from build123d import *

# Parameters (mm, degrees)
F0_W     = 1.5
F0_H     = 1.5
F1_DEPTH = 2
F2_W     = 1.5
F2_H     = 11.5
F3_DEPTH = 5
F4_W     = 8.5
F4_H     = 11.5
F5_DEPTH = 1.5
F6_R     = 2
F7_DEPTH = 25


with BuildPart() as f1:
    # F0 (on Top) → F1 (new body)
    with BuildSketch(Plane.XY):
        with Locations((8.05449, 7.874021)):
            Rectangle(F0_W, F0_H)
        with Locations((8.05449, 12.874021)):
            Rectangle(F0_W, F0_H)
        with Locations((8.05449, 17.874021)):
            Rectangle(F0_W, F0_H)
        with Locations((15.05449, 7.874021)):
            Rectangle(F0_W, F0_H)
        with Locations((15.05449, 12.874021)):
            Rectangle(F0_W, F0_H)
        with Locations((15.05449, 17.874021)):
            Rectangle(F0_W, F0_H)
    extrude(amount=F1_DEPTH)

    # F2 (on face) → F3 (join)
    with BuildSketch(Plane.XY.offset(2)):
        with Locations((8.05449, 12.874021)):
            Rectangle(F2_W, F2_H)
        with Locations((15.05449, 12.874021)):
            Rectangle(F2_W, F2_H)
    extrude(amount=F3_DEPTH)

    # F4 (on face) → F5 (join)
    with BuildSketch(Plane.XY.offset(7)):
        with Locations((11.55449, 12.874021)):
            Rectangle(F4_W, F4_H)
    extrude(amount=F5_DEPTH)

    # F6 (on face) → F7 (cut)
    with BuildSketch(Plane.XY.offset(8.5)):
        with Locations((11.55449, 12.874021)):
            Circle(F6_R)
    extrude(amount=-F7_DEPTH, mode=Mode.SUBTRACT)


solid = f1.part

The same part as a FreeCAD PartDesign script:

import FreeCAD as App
import Part
import Sketcher

V = App.Vector
Q = App.Units.Quantity

doc = App.newDocument("Part")
body = doc.addObject("PartDesign::Body", "Body")
body.AllowCompound = True

# Sketch on XY plane
sketch1 = doc.addObject("Sketcher::SketchObject", "Sketch")
body.addObject(sketch1)
sketch1.AttachmentSupport = (doc.XY_Plane, [""])
sketch1.MapMode = "FlatFace"
sketch1.addGeometry(Part.LineSegment(V(7.3, 8.6, 0), V(7.3, 7.1, 0)), False)
sketch1.addGeometry(Part.LineSegment(V(7.3, 7.1, 0), V(8.8, 7.1, 0)), False)
sketch1.addGeometry(Part.LineSegment(V(8.8, 7.1, 0), V(8.8, 8.6, 0)), False)
sketch1.addGeometry(Part.LineSegment(V(8.8, 8.6, 0), V(7.3, 8.6, 0)), False)
sketch1.addGeometry(Part.LineSegment(V(7.3, 13.6, 0), V(7.3, 12.1, 0)), False)
sketch1.addGeometry(Part.LineSegment(V(7.3, 12.1, 0), V(8.8, 12.1, 0)), False)
sketch1.addGeometry(Part.LineSegment(V(8.8, 12.1, 0), V(8.8, 13.6, 0)), False)
sketch1.addGeometry(Part.LineSegment(V(8.8, 13.6, 0), V(7.3, 13.6, 0)), False)
sketch1.addGeometry(Part.LineSegment(V(7.3, 18.6, 0), V(7.3, 17.1, 0)), False)
sketch1.addGeometry(Part.LineSegment(V(7.3, 17.1, 0), V(8.8, 17.1, 0)), False)
sketch1.addGeometry(Part.LineSegment(V(8.8, 17.1, 0), V(8.8, 18.6, 0)), False)
sketch1.addGeometry(Part.LineSegment(V(8.8, 18.6, 0), V(7.3, 18.6, 0)), False)
sketch1.addGeometry(Part.LineSegment(V(14.3, 8.6, 0), V(14.3, 7.1, 0)), False)
sketch1.addGeometry(Part.LineSegment(V(14.3, 7.1, 0), V(15.8, 7.1, 0)), False)
sketch1.addGeometry(Part.LineSegment(V(15.8, 7.1, 0), V(15.8, 8.6, 0)), False)
sketch1.addGeometry(Part.LineSegment(V(15.8, 8.6, 0), V(14.3, 8.6, 0)), False)
sketch1.addGeometry(Part.LineSegment(V(14.3, 13.6, 0), V(14.3, 12.1, 0)), False)
sketch1.addGeometry(Part.LineSegment(V(14.3, 12.1, 0), V(15.8, 12.1, 0)), False)
sketch1.addGeometry(Part.LineSegment(V(15.8, 12.1, 0), V(15.8, 13.6, 0)), False)
sketch1.addGeometry(Part.LineSegment(V(15.8, 13.6, 0), V(14.3, 13.6, 0)), False)
sketch1.addGeometry(Part.LineSegment(V(14.3, 18.6, 0), V(14.3, 17.1, 0)), False)
sketch1.addGeometry(Part.LineSegment(V(14.3, 17.1, 0), V(15.8, 17.1, 0)), False)
sketch1.addGeometry(Part.LineSegment(V(15.8, 17.1, 0), V(15.8, 18.6, 0)), False)
sketch1.addGeometry(Part.LineSegment(V(15.8, 18.6, 0), V(14.3, 18.6, 0)), False)
sketch1.addConstraint(Sketcher.Constraint("Coincident", 0, 2, 1, 1))
sketch1.addConstraint(Sketcher.Constraint("Coincident", 1, 2, 2, 1))
sketch1.addConstraint(Sketcher.Constraint("Coincident", 2, 2, 3, 1))
sketch1.addConstraint(Sketcher.Constraint("Coincident", 3, 2, 0, 1))
sketch1.addConstraint(Sketcher.Constraint("Coincident", 4, 2, 5, 1))
sketch1.addConstraint(Sketcher.Constraint("Coincident", 5, 2, 6, 1))
sketch1.addConstraint(Sketcher.Constraint("Coincident", 6, 2, 7, 1))
sketch1.addConstraint(Sketcher.Constraint("Coincident", 7, 2, 4, 1))
sketch1.addConstraint(Sketcher.Constraint("Coincident", 8, 2, 9, 1))
sketch1.addConstraint(Sketcher.Constraint("Coincident", 9, 2, 10, 1))
sketch1.addConstraint(Sketcher.Constraint("Coincident", 10, 2, 11, 1))
sketch1.addConstraint(Sketcher.Constraint("Coincident", 11, 2, 8, 1))
sketch1.addConstraint(Sketcher.Constraint("Coincident", 12, 2, 13, 1))
sketch1.addConstraint(Sketcher.Constraint("Coincident", 13, 2, 14, 1))
sketch1.addConstraint(Sketcher.Constraint("Coincident", 14, 2, 15, 1))
sketch1.addConstraint(Sketcher.Constraint("Coincident", 15, 2, 12, 1))
sketch1.addConstraint(Sketcher.Constraint("Coincident", 16, 2, 17, 1))
sketch1.addConstraint(Sketcher.Constraint("Coincident", 17, 2, 18, 1))
sketch1.addConstraint(Sketcher.Constraint("Coincident", 18, 2, 19, 1))
sketch1.addConstraint(Sketcher.Constraint("Coincident", 19, 2, 16, 1))
sketch1.addConstraint(Sketcher.Constraint("Coincident", 20, 2, 21, 1))
sketch1.addConstraint(Sketcher.Constraint("Coincident", 21, 2, 22, 1))
sketch1.addConstraint(Sketcher.Constraint("Coincident", 22, 2, 23, 1))
sketch1.addConstraint(Sketcher.Constraint("Coincident", 23, 2, 20, 1))
sketch1.addConstraint(Sketcher.Constraint("Vertical", 0))
sketch1.addConstraint(Sketcher.Constraint("Horizontal", 1))
sketch1.addConstraint(Sketcher.Constraint("Vertical", 2))
sketch1.addConstraint(Sketcher.Constraint("Horizontal", 3))
sketch1.addConstraint(Sketcher.Constraint("Vertical", 4))
sketch1.addConstraint(Sketcher.Constraint("Horizontal", 5))
sketch1.addConstraint(Sketcher.Constraint("Vertical", 6))
sketch1.addConstraint(Sketcher.Constraint("Horizontal", 7))
sketch1.addConstraint(Sketcher.Constraint("Vertical", 8))
sketch1.addConstraint(Sketcher.Constraint("Horizontal", 9))
sketch1.addConstraint(Sketcher.Constraint("Vertical", 10))
sketch1.addConstraint(Sketcher.Constraint("Horizontal", 11))
sketch1.addConstraint(Sketcher.Constraint("Vertical", 12))
sketch1.addConstraint(Sketcher.Constraint("Horizontal", 13))
sketch1.addConstraint(Sketcher.Constraint("Vertical", 14))
sketch1.addConstraint(Sketcher.Constraint("Horizontal", 15))
sketch1.addConstraint(Sketcher.Constraint("Vertical", 16))
sketch1.addConstraint(Sketcher.Constraint("Horizontal", 17))
sketch1.addConstraint(Sketcher.Constraint("Vertical", 18))
sketch1.addConstraint(Sketcher.Constraint("Horizontal", 19))
sketch1.addConstraint(Sketcher.Constraint("Vertical", 20))
sketch1.addConstraint(Sketcher.Constraint("Horizontal", 21))
sketch1.addConstraint(Sketcher.Constraint("Vertical", 22))
sketch1.addConstraint(Sketcher.Constraint("Horizontal", 23))
sketch1.addConstraint(Sketcher.Constraint("Horizontal", 1, 2, 12, 2))
sketch1.addConstraint(Sketcher.Constraint("Horizontal", 3, 2, 14, 2))
sketch1.addConstraint(Sketcher.Constraint("Horizontal", 5, 2, 16, 2))
sketch1.addConstraint(Sketcher.Constraint("Horizontal", 7, 2, 18, 2))
sketch1.addConstraint(Sketcher.Constraint("Horizontal", 9, 2, 20, 2))
sketch1.addConstraint(Sketcher.Constraint("Horizontal", 11, 2, 22, 2))
sketch1.addConstraint(Sketcher.Constraint("Vertical", 3, 2, 4, 2))
sketch1.addConstraint(Sketcher.Constraint("Vertical", 2, 2, 5, 2))
sketch1.addConstraint(Sketcher.Constraint("Vertical", 7, 2, 8, 2))
sketch1.addConstraint(Sketcher.Constraint("Vertical", 6, 2, 9, 2))
sketch1.addConstraint(Sketcher.Constraint("Vertical", 15, 2, 16, 2))
sketch1.addConstraint(Sketcher.Constraint("Vertical", 14, 2, 17, 2))
sketch1.addConstraint(Sketcher.Constraint("Vertical", 19, 2, 20, 2))
sketch1.addConstraint(Sketcher.Constraint("Vertical", 18, 2, 21, 2))
sketch1.addConstraint(Sketcher.Constraint("Equal", 11, 13))
sketch1.addConstraint(Sketcher.Constraint("Equal", 23, 0))
sketch1.addConstraint(Sketcher.Constraint("Equal", 2, 4))
sketch1.addConstraint(Sketcher.Constraint("Equal", 6, 8))
sketch1.addConstraint(Sketcher.Constraint("DistanceX", 1, 1, 1, 2, Q("1.5 mm")))
sketch1.addConstraint(Sketcher.Constraint("DistanceY", 0, 2, 4, 2, Q("5 mm")))
sketch1.addConstraint(Sketcher.Constraint("DistanceY", 4, 2, 8, 2, Q("5 mm")))
sketch1.addConstraint(Sketcher.Constraint("DistanceX", 0, 2, 12, 2, Q("7 mm")))
sketch1.addConstraint(Sketcher.Constraint("DistanceX", -1, 1, 0, 2, Q("7.30449 mm")))
sketch1.addConstraint(Sketcher.Constraint("DistanceY", -1, 1, 0, 2, Q("7.124021 mm")))
pad1 = doc.addObject("PartDesign::Pad", "Pad")
body.addObject(pad1)
pad1.Profile = sketch1
pad1.Length = 2

# Sketch on XY plane
sketch2 = doc.addObject("Sketcher::SketchObject", "Sketch001")
body.addObject(sketch2)
sketch2.AttachmentSupport = (doc.XY_Plane, [""])
sketch2.MapMode = "FlatFace"
sketch2.AttachmentOffset = App.Placement(V(0, 0, 2), App.Rotation())
sketch2.addGeometry(Part.LineSegment(V(7.3, 18.6, 0), V(7.3, 7.1, 0)), False)
sketch2.addGeometry(Part.LineSegment(V(7.3, 7.1, 0), V(8.8, 7.1, 0)), False)
sketch2.addGeometry(Part.LineSegment(V(8.8, 7.1, 0), V(8.8, 18.6, 0)), False)
sketch2.addGeometry(Part.LineSegment(V(8.8, 18.6, 0), V(7.3, 18.6, 0)), False)
sketch2.addGeometry(Part.LineSegment(V(14.3, 18.6, 0), V(14.3, 7.1, 0)), False)
sketch2.addGeometry(Part.LineSegment(V(14.3, 7.1, 0), V(15.8, 7.1, 0)), False)
sketch2.addGeometry(Part.LineSegment(V(15.8, 7.1, 0), V(15.8, 18.6, 0)), False)
sketch2.addGeometry(Part.LineSegment(V(15.8, 18.6, 0), V(14.3, 18.6, 0)), False)
sketch2.addConstraint(Sketcher.Constraint("Coincident", 0, 2, 1, 1))
sketch2.addConstraint(Sketcher.Constraint("Coincident", 1, 2, 2, 1))
sketch2.addConstraint(Sketcher.Constraint("Coincident", 2, 2, 3, 1))
sketch2.addConstraint(Sketcher.Constraint("Coincident", 3, 2, 0, 1))
sketch2.addConstraint(Sketcher.Constraint("Coincident", 4, 2, 5, 1))
sketch2.addConstraint(Sketcher.Constraint("Coincident", 5, 2, 6, 1))
sketch2.addConstraint(Sketcher.Constraint("Coincident", 6, 2, 7, 1))
sketch2.addConstraint(Sketcher.Constraint("Coincident", 7, 2, 4, 1))
sketch2.addConstraint(Sketcher.Constraint("Vertical", 0))
sketch2.addConstraint(Sketcher.Constraint("Horizontal", 1))
sketch2.addConstraint(Sketcher.Constraint("Vertical", 2))
sketch2.addConstraint(Sketcher.Constraint("Horizontal", 3))
sketch2.addConstraint(Sketcher.Constraint("Vertical", 4))
sketch2.addConstraint(Sketcher.Constraint("Horizontal", 5))
sketch2.addConstraint(Sketcher.Constraint("Vertical", 6))
sketch2.addConstraint(Sketcher.Constraint("Horizontal", 7))
sketch2.addConstraint(Sketcher.Constraint("Horizontal", 1, 2, 4, 2))
sketch2.addConstraint(Sketcher.Constraint("Horizontal", 3, 2, 6, 2))
sketch2.addConstraint(Sketcher.Constraint("Equal", 3, 5))
sketch2.addConstraint(Sketcher.Constraint("DistanceX", 1, 1, 1, 2, Q("1.5 mm")))
sketch2.addConstraint(Sketcher.Constraint("DistanceY", 0, 2, 0, 1, Q("11.5 mm")))
sketch2.addConstraint(Sketcher.Constraint("DistanceX", 0, 2, 4, 2, Q("7 mm")))
sketch2.addConstraint(Sketcher.Constraint("DistanceX", -1, 1, 0, 2, Q("7.30449 mm")))
sketch2.addConstraint(Sketcher.Constraint("DistanceY", -1, 1, 0, 2, Q("7.124021 mm")))
pad2 = doc.addObject("PartDesign::Pad", "Pad001")
body.addObject(pad2)
pad2.Profile = sketch2
pad2.Length = 5

# Sketch on XY plane
sketch3 = doc.addObject("Sketcher::SketchObject", "Sketch002")
body.addObject(sketch3)
sketch3.AttachmentSupport = (doc.XY_Plane, [""])
sketch3.MapMode = "FlatFace"
sketch3.AttachmentOffset = App.Placement(V(0, 0, 7), App.Rotation())
sketch3.addGeometry(Part.LineSegment(V(7, 19, 0), V(7, 7, 0)), False)
sketch3.addGeometry(Part.LineSegment(V(7, 7, 0), V(16, 7, 0)), False)
sketch3.addGeometry(Part.LineSegment(V(16, 7, 0), V(16, 19, 0)), False)
sketch3.addGeometry(Part.LineSegment(V(16, 19, 0), V(7, 19, 0)), False)
sketch3.addConstraint(Sketcher.Constraint("Coincident", 0, 2, 1, 1))
sketch3.addConstraint(Sketcher.Constraint("Coincident", 1, 2, 2, 1))
sketch3.addConstraint(Sketcher.Constraint("Coincident", 2, 2, 3, 1))
sketch3.addConstraint(Sketcher.Constraint("Coincident", 3, 2, 0, 1))
sketch3.addConstraint(Sketcher.Constraint("Vertical", 0))
sketch3.addConstraint(Sketcher.Constraint("Horizontal", 1))
sketch3.addConstraint(Sketcher.Constraint("Vertical", 2))
sketch3.addConstraint(Sketcher.Constraint("Horizontal", 3))
sketch3.addConstraint(Sketcher.Constraint("DistanceX", 1, 1, 1, 2, Q("8.5 mm")))
sketch3.addConstraint(Sketcher.Constraint("DistanceY", 0, 2, 0, 1, Q("11.5 mm")))
sketch3.addConstraint(Sketcher.Constraint("DistanceX", -1, 1, 0, 2, Q("7.30449 mm")))
sketch3.addConstraint(Sketcher.Constraint("DistanceY", -1, 1, 0, 2, Q("7.124021 mm")))
pad3 = doc.addObject("PartDesign::Pad", "Pad002")
body.addObject(pad3)
pad3.Profile = sketch3
pad3.Length = 1.5

# Sketch on XY plane
sketch4 = doc.addObject("Sketcher::SketchObject", "Sketch003")
body.addObject(sketch4)
sketch4.AttachmentSupport = (doc.XY_Plane, [""])
sketch4.MapMode = "FlatFace"
sketch4.AttachmentOffset = App.Placement(V(0, 0, 8.5), App.Rotation())
sketch4.addGeometry(Part.Circle(V(11.6, 12.9, 0), V(0, 0, 1), 2), False)
sketch4.addConstraint(Sketcher.Constraint("Diameter", 0, Q("4 mm")))
sketch4.addConstraint(Sketcher.Constraint("DistanceX", -1, 1, 0, 3, Q("11.55449 mm")))
sketch4.addConstraint(Sketcher.Constraint("DistanceY", -1, 1, 0, 3, Q("12.874021 mm")))
pocket1 = doc.addObject("PartDesign::Pocket", "Pocket")
body.addObject(pocket1)
pocket1.Profile = sketch4
pocket1.Length = 25

doc.recompute()
